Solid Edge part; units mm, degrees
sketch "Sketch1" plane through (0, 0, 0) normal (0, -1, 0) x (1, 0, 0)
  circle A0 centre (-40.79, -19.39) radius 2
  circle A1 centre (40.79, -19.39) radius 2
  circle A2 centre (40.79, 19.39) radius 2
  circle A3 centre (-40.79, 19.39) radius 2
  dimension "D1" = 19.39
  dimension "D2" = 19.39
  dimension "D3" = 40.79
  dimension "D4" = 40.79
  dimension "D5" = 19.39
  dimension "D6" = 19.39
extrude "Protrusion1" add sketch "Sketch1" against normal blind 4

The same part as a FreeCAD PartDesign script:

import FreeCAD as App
import Part
import Sketcher
Q = App.Units.Quantity

doc = App.newDocument("Part")
body = doc.addObject("PartDesign::Body", "Body")
body.AllowCompound = True

# Sketch on XZ plane
sketch1 = body.newObject("Sketcher::SketchObject", "Sketch")
sketch1.AttachmentSupport = (doc.getObject("XZ_Plane"), [""])
sketch1.MapMode = "FlatFace"
sketch1.addGeometry(Part.Circle(App.Vector(-40.8, -19.4, 0), App.Vector(0, 0, 1), 2), False)
sketch1.addGeometry(Part.Circle(App.Vector(40.8, -19.4, 0), App.Vector(0, 0, 1), 2), False)
sketch1.addGeometry(Part.Circle(App.Vector(40.8, 19.4, 0), App.Vector(0, 0, 1), 2), False)
sketch1.addGeometry(Part.Circle(App.Vector(-40.8, 19.4, 0), App.Vector(0, 0, 1), 2), False)
sketch1.addConstraint(Sketcher.Constraint("Equal", 0, 1))
sketch1.addConstraint(Sketcher.Constraint("Equal", 1, 2))
sketch1.addConstraint(Sketcher.Constraint("Equal", 2, 3))
sketch1.addConstraint(Sketcher.Constraint("Symmetric", 0, 3, 2, 3, -1, 1))
sketch1.addConstraint(Sketcher.Constraint("Symmetric", 1, 3, 3, 3, -1, 1))
sketch1.addConstraint(Sketcher.Constraint("Symmetric", 0, 3, 1, 3, -2))
sketch1.addConstraint(Sketcher.Constraint("Diameter", 0, Q("4 mm")))
sketch1.addConstraint(Sketcher.Constraint("DistanceX", 0, 3, -1, 1, Q("40.79 mm")))
sketch1.addConstraint(Sketcher.Constraint("DistanceY", 0, 3, -1, 1, Q("19.39 mm")))
pad1 = body.newObject("PartDesign::Pad", "Pad")
pad1.Profile = sketch1
pad1.Length = 4
pad1.Reversed = True

doc.recompute()
